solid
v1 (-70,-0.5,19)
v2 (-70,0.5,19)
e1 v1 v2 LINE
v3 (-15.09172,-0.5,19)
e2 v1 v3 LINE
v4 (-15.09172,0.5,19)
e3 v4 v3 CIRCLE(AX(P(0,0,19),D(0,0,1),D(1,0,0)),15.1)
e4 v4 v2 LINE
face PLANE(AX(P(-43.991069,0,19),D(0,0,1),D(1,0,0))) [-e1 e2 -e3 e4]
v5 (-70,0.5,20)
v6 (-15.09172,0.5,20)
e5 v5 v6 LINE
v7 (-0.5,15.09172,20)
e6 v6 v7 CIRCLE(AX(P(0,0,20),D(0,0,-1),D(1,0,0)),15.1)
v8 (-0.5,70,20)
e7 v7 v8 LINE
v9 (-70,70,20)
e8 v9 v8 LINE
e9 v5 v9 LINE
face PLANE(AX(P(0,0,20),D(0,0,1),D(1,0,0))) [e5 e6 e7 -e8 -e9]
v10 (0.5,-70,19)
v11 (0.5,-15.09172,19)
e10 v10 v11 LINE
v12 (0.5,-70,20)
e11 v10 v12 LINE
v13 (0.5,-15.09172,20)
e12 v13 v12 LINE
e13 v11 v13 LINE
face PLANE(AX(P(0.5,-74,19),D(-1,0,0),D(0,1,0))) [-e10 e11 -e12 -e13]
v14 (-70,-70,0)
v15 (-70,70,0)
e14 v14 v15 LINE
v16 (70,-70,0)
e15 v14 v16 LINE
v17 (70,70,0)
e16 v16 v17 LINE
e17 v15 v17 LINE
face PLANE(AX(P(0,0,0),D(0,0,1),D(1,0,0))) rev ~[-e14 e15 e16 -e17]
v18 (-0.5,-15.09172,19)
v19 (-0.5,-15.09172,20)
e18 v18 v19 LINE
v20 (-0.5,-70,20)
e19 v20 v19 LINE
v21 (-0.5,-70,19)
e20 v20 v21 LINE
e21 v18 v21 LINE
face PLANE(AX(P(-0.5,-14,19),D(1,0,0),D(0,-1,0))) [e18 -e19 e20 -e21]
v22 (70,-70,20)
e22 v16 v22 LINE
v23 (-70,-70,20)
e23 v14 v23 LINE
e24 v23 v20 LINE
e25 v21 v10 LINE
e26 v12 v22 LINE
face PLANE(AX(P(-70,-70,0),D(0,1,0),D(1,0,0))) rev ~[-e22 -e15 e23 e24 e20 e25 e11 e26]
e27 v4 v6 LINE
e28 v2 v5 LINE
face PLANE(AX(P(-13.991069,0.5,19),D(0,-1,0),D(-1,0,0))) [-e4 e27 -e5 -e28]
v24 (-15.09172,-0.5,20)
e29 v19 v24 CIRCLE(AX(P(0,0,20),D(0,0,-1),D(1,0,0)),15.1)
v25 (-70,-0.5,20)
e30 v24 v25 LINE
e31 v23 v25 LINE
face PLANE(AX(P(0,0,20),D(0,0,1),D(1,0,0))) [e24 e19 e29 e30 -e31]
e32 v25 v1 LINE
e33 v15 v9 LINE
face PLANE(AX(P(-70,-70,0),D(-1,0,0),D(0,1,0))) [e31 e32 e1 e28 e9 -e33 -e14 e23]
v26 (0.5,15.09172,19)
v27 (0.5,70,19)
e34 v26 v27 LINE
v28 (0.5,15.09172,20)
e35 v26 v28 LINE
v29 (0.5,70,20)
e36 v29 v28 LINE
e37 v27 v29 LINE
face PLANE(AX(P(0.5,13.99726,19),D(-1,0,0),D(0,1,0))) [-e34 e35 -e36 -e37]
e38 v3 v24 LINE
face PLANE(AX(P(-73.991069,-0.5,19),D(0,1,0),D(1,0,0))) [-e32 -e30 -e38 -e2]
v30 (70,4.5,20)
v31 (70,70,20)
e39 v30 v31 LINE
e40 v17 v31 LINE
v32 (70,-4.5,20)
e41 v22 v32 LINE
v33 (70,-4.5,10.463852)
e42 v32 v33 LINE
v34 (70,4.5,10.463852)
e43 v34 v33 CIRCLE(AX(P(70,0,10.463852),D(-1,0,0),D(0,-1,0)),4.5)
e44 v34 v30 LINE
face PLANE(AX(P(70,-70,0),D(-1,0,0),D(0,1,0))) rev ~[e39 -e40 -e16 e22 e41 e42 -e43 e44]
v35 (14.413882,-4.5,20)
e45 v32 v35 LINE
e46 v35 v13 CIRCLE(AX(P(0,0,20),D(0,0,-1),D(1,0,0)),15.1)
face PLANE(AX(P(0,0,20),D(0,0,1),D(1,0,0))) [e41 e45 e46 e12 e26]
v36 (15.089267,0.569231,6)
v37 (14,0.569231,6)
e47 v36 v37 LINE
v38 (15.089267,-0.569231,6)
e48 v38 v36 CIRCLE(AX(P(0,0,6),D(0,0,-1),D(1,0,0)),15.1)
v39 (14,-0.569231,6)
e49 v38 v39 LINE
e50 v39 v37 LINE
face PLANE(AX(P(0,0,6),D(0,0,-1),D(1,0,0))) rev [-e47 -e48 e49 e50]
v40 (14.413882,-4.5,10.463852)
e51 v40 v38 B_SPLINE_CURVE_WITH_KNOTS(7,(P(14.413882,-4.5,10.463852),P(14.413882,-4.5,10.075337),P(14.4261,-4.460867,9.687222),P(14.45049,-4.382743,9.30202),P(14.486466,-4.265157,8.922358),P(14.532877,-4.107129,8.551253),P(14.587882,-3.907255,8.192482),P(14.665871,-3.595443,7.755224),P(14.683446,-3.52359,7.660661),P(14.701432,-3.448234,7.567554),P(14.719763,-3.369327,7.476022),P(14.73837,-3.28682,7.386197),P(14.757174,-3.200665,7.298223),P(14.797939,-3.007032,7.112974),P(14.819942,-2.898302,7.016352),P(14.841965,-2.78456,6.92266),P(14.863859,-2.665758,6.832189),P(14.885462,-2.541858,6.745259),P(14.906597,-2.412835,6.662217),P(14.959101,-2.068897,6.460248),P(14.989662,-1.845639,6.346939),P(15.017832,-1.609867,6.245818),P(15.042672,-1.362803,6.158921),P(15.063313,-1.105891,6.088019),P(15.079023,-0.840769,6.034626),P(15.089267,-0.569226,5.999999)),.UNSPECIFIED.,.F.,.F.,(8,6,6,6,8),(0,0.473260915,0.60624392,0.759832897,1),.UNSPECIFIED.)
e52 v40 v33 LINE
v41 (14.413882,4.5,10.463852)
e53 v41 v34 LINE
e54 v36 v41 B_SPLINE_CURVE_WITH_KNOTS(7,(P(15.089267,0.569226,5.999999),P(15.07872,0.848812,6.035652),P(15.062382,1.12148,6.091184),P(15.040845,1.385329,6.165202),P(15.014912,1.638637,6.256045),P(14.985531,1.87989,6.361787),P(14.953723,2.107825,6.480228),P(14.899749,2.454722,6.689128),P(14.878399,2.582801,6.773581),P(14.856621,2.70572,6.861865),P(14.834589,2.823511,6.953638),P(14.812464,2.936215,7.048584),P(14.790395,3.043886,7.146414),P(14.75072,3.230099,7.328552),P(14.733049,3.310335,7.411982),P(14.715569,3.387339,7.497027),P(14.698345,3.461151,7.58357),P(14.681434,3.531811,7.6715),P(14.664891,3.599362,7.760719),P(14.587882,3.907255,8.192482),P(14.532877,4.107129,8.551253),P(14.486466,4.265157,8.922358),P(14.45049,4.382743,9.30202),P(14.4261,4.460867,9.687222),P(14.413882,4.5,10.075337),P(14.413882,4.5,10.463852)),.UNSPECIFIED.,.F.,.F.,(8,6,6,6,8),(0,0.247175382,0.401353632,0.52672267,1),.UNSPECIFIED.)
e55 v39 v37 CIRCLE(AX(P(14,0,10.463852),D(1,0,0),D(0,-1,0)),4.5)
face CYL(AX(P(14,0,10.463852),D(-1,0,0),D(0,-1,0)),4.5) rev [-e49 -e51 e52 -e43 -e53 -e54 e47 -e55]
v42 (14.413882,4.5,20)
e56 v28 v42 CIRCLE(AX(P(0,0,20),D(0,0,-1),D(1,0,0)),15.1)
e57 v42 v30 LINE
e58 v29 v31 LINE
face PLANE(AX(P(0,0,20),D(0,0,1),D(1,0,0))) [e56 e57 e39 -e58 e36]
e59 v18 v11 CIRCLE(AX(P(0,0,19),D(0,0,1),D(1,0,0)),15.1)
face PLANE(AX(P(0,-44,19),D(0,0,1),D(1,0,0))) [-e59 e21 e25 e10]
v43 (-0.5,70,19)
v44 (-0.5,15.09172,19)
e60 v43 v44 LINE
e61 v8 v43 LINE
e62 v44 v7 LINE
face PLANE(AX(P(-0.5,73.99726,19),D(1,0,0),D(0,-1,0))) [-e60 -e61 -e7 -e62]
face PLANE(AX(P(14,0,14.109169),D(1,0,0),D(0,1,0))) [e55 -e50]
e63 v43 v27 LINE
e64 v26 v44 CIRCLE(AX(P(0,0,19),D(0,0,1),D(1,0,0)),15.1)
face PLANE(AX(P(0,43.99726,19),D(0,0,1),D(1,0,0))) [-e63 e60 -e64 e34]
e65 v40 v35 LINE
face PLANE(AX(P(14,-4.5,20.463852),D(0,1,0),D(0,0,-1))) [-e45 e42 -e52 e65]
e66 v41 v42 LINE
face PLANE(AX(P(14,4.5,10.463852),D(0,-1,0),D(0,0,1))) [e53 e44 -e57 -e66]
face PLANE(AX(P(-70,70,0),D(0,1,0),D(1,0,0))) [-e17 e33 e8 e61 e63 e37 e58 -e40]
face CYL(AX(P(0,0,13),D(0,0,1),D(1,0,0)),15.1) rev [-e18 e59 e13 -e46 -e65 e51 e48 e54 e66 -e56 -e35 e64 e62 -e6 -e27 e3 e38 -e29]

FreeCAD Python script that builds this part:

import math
import FreeCAD as App
import Part
import Sketcher
from FreeCAD import Vector
Q = App.Units.Quantity


def add_polygon(sketch, points):
    """Adds a closed chain of lines whose ends are joined by coincident constraints."""
    first, n = sketch.GeometryCount, len(points)
    for a, b in zip(points, points[1:] + points[:1]):
        sketch.addGeometry(Part.LineSegment(App.Vector(*a, 0), App.Vector(*b, 0)), False)
    for i in range(n):
        sketch.addConstraint(Sketcher.Constraint("Coincident", first + i, 2, first + (i + 1) % n, 1))

doc = App.newDocument("Part")
body = doc.addObject("PartDesign::Body", "Body")

sketch1 = body.newObject("Sketcher::SketchObject", "Sketch")
sketch1.AttachmentSupport = (doc.getObject("XY_Plane"), [""])
sketch1.MapMode = "FlatFace"
add_polygon(sketch1, [(-70, 70), (-70, -70), (70, -70), (70, 70)])
sketch1.addConstraint([
    Sketcher.Constraint("Vertical", 0),
    Sketcher.Constraint("Horizontal", 1),
    Sketcher.Constraint("Vertical", 2),
    Sketcher.Constraint("Horizontal", 3),
    Sketcher.Constraint("Symmetric", 0, 2, 2, 2, -1, 1),
    Sketcher.Constraint("Equal", 3, 0),
    Sketcher.Constraint("DistanceX", 1, 1, 1, 2, Q("140 mm")),
])
pad1 = body.newObject("PartDesign::Pad", "Pad")
pad1.Profile = sketch1
pad1.Length = 20

sketch2 = body.newObject("Sketcher::SketchObject", "Sketch001")
sketch2.AttachmentSupport = (doc.getObject("XZ_Plane"), [""])
sketch2.MapMode = "FlatFace"
add_polygon(sketch2, [(0, 20), (0, 6), (15, 6), (15, 20)])
sketch2.addConstraint([
    Sketcher.Constraint("Vertical", 0),
    Sketcher.Constraint("Horizontal", 1),
    Sketcher.Constraint("Vertical", 2),
    Sketcher.Constraint("Horizontal", 3),
    Sketcher.Constraint("PointOnObject", 0, 2, -2),
    Sketcher.Constraint("DistanceY", 0, 2, 0, 1, Q("14 mm")),
    Sketcher.Constraint("DistanceX", 1, 1, 1, 2, Q("15.1 mm")),
    Sketcher.Constraint("DistanceY", -1, 1, 0, 2, Q("6 mm")),
])
groove = body.newObject("PartDesign::Groove", "Groove")
groove.Profile = sketch2
groove.ReferenceAxis = (sketch2, ["V_Axis"])
groove.Angle = 360

sketch3 = body.newObject("Sketcher::SketchObject", "Sketch002")
sketch3.AttachmentSupport = (doc.getObject("YZ_Plane"), [""])
sketch3.MapMode = "FlatFace"
sketch3.AttachmentOffset = App.Placement(Vector(0, 0, 14), App.Rotation())
sketch3.addGeometry([
    Part.LineSegment(Vector(4.5, 20.5, 0), Vector(-4.5, 20.5, 0)),
    Part.LineSegment(Vector(-4.5, 20.5, 0), Vector(-4.5, 10.5, 0)),
    Part.ArcOfCircle(Part.Circle(Vector(0, 10.5, 0), Vector(0, 0, 1), 4.5), math.radians(180), math.radians(360)),
    Part.LineSegment(Vector(4.5, 10.5, 0), Vector(4.5, 20.5, 0)),
], False)
sketch3.addConstraint([
    Sketcher.Constraint("Coincident", 0, 2, 1, 1),
    Sketcher.Constraint("Tangent", 1, 2, 2, 1),
    Sketcher.Constraint("Tangent", 2, 2, 3, 1),
    Sketcher.Constraint("Coincident", 3, 2, 0, 1),
    Sketcher.Constraint("Horizontal", 0),
    Sketcher.Constraint("Vertical", 1),
    Sketcher.Constraint("Vertical", 3),
    Sketcher.Constraint("PointOnObject", 2, 3, -2),
    Sketcher.Constraint("Radius", 2, Q("4.5 mm")),
    Sketcher.Constraint("DistanceY", 1, 2, 1, 1, Q("10 mm")),
    Sketcher.Constraint("DistanceY", -1, 1, 2, 3, Q("10.463852 mm")),
])
pocket1 = body.newObject("PartDesign::Pocket", "Pocket")
pocket1.Profile = sketch3
pocket1.Length = 136
pocket1.Reversed = True

sketch4 = body.newObject("Sketcher::SketchObject", "Sketch003")
sketch4.AttachmentSupport = (doc.getObject("XY_Plane"), [""])
sketch4.MapMode = "FlatFace"
sketch4.AttachmentOffset = App.Placement(Vector(0, 0, 19), App.Rotation())
add_polygon(sketch4, [(14, 0.5), (14, -0.5), (74, -0.5), (74, 0.5)])
add_polygon(sketch4, [(0.5, -14), (-0.5, -14), (-0.5, -74), (0.5, -74)])
add_polygon(sketch4, [(-14, -0.5), (-14, 0.5), (-74, 0.5), (-74, -0.5)])
add_polygon(sketch4, [(-0.5, 74), (-0.5, 14), (0.5, 14), (0.5, 74)])
sketch4.addConstraint([
    Sketcher.Constraint("Vertical", 0),
    Sketcher.Constraint("Horizontal", 1),
    Sketcher.Constraint("Vertical", 2),
    Sketcher.Constraint("Horizontal", 3),
    Sketcher.Constraint("Horizontal", 4),
    Sketcher.Constraint("Vertical", 5),
    Sketcher.Constraint("Horizontal", 6),
    Sketcher.Constraint("Vertical", 7),
    Sketcher.Constraint("Vertical", 8),
    Sketcher.Constraint("Horizontal", 9),
    Sketcher.Constraint("Vertical", 10),
    Sketcher.Constraint("Horizontal", 11),
    Sketcher.Constraint("Vertical", 12),
    Sketcher.Constraint("Horizontal", 13),
    Sketcher.Constraint("Vertical", 14),
    Sketcher.Constraint("Horizontal", 15),
    Sketcher.Constraint("Horizontal", 3, 2, 8, 2),
    Sketcher.Constraint("Horizontal", 1, 2, 10, 2),
    Sketcher.Constraint("Vertical", 5, 2, 12, 2),
    Sketcher.Constraint("Vertical", 7, 2, 13, 2),
    Sketcher.Constraint("Equal", 3, 9),
    Sketcher.Constraint("Equal", 15, 0),
    Sketcher.Constraint("Equal", 11, 5),
    Sketcher.Constraint("Equal", 7, 12),
    Sketcher.Constraint("DistanceX", 1, 1, 1, 2, Q("60 mm")),
    Sketcher.Constraint("DistanceX", 4, 2, 4, 1, Q("1 mm")),
    Sketcher.Constraint("DistanceX", -1, 1, 0, 2, Q("14 mm")),
    Sketcher.Constraint("DistanceY", 4, 2, -1, 1, Q("14 mm")),
    Sketcher.Constraint("DistanceY", 0, 2, -1, 1, Q("0.5 mm")),
    Sketcher.Constraint("DistanceX", 4, 2, -1, 1, Q("0.5 mm")),
    Sketcher.Constraint("DistanceX", 8, 2, -1, 1, Q("13.991069 mm")),
    Sketcher.Constraint("DistanceY", -1, 1, 12, 2, Q("13.99726 mm")),
])
pocket2 = body.newObject("PartDesign::Pocket", "Pocket001")
pocket2.Profile = sketch4
pocket2.Length = 6
pocket2.Reversed = True

doc.recompute()
